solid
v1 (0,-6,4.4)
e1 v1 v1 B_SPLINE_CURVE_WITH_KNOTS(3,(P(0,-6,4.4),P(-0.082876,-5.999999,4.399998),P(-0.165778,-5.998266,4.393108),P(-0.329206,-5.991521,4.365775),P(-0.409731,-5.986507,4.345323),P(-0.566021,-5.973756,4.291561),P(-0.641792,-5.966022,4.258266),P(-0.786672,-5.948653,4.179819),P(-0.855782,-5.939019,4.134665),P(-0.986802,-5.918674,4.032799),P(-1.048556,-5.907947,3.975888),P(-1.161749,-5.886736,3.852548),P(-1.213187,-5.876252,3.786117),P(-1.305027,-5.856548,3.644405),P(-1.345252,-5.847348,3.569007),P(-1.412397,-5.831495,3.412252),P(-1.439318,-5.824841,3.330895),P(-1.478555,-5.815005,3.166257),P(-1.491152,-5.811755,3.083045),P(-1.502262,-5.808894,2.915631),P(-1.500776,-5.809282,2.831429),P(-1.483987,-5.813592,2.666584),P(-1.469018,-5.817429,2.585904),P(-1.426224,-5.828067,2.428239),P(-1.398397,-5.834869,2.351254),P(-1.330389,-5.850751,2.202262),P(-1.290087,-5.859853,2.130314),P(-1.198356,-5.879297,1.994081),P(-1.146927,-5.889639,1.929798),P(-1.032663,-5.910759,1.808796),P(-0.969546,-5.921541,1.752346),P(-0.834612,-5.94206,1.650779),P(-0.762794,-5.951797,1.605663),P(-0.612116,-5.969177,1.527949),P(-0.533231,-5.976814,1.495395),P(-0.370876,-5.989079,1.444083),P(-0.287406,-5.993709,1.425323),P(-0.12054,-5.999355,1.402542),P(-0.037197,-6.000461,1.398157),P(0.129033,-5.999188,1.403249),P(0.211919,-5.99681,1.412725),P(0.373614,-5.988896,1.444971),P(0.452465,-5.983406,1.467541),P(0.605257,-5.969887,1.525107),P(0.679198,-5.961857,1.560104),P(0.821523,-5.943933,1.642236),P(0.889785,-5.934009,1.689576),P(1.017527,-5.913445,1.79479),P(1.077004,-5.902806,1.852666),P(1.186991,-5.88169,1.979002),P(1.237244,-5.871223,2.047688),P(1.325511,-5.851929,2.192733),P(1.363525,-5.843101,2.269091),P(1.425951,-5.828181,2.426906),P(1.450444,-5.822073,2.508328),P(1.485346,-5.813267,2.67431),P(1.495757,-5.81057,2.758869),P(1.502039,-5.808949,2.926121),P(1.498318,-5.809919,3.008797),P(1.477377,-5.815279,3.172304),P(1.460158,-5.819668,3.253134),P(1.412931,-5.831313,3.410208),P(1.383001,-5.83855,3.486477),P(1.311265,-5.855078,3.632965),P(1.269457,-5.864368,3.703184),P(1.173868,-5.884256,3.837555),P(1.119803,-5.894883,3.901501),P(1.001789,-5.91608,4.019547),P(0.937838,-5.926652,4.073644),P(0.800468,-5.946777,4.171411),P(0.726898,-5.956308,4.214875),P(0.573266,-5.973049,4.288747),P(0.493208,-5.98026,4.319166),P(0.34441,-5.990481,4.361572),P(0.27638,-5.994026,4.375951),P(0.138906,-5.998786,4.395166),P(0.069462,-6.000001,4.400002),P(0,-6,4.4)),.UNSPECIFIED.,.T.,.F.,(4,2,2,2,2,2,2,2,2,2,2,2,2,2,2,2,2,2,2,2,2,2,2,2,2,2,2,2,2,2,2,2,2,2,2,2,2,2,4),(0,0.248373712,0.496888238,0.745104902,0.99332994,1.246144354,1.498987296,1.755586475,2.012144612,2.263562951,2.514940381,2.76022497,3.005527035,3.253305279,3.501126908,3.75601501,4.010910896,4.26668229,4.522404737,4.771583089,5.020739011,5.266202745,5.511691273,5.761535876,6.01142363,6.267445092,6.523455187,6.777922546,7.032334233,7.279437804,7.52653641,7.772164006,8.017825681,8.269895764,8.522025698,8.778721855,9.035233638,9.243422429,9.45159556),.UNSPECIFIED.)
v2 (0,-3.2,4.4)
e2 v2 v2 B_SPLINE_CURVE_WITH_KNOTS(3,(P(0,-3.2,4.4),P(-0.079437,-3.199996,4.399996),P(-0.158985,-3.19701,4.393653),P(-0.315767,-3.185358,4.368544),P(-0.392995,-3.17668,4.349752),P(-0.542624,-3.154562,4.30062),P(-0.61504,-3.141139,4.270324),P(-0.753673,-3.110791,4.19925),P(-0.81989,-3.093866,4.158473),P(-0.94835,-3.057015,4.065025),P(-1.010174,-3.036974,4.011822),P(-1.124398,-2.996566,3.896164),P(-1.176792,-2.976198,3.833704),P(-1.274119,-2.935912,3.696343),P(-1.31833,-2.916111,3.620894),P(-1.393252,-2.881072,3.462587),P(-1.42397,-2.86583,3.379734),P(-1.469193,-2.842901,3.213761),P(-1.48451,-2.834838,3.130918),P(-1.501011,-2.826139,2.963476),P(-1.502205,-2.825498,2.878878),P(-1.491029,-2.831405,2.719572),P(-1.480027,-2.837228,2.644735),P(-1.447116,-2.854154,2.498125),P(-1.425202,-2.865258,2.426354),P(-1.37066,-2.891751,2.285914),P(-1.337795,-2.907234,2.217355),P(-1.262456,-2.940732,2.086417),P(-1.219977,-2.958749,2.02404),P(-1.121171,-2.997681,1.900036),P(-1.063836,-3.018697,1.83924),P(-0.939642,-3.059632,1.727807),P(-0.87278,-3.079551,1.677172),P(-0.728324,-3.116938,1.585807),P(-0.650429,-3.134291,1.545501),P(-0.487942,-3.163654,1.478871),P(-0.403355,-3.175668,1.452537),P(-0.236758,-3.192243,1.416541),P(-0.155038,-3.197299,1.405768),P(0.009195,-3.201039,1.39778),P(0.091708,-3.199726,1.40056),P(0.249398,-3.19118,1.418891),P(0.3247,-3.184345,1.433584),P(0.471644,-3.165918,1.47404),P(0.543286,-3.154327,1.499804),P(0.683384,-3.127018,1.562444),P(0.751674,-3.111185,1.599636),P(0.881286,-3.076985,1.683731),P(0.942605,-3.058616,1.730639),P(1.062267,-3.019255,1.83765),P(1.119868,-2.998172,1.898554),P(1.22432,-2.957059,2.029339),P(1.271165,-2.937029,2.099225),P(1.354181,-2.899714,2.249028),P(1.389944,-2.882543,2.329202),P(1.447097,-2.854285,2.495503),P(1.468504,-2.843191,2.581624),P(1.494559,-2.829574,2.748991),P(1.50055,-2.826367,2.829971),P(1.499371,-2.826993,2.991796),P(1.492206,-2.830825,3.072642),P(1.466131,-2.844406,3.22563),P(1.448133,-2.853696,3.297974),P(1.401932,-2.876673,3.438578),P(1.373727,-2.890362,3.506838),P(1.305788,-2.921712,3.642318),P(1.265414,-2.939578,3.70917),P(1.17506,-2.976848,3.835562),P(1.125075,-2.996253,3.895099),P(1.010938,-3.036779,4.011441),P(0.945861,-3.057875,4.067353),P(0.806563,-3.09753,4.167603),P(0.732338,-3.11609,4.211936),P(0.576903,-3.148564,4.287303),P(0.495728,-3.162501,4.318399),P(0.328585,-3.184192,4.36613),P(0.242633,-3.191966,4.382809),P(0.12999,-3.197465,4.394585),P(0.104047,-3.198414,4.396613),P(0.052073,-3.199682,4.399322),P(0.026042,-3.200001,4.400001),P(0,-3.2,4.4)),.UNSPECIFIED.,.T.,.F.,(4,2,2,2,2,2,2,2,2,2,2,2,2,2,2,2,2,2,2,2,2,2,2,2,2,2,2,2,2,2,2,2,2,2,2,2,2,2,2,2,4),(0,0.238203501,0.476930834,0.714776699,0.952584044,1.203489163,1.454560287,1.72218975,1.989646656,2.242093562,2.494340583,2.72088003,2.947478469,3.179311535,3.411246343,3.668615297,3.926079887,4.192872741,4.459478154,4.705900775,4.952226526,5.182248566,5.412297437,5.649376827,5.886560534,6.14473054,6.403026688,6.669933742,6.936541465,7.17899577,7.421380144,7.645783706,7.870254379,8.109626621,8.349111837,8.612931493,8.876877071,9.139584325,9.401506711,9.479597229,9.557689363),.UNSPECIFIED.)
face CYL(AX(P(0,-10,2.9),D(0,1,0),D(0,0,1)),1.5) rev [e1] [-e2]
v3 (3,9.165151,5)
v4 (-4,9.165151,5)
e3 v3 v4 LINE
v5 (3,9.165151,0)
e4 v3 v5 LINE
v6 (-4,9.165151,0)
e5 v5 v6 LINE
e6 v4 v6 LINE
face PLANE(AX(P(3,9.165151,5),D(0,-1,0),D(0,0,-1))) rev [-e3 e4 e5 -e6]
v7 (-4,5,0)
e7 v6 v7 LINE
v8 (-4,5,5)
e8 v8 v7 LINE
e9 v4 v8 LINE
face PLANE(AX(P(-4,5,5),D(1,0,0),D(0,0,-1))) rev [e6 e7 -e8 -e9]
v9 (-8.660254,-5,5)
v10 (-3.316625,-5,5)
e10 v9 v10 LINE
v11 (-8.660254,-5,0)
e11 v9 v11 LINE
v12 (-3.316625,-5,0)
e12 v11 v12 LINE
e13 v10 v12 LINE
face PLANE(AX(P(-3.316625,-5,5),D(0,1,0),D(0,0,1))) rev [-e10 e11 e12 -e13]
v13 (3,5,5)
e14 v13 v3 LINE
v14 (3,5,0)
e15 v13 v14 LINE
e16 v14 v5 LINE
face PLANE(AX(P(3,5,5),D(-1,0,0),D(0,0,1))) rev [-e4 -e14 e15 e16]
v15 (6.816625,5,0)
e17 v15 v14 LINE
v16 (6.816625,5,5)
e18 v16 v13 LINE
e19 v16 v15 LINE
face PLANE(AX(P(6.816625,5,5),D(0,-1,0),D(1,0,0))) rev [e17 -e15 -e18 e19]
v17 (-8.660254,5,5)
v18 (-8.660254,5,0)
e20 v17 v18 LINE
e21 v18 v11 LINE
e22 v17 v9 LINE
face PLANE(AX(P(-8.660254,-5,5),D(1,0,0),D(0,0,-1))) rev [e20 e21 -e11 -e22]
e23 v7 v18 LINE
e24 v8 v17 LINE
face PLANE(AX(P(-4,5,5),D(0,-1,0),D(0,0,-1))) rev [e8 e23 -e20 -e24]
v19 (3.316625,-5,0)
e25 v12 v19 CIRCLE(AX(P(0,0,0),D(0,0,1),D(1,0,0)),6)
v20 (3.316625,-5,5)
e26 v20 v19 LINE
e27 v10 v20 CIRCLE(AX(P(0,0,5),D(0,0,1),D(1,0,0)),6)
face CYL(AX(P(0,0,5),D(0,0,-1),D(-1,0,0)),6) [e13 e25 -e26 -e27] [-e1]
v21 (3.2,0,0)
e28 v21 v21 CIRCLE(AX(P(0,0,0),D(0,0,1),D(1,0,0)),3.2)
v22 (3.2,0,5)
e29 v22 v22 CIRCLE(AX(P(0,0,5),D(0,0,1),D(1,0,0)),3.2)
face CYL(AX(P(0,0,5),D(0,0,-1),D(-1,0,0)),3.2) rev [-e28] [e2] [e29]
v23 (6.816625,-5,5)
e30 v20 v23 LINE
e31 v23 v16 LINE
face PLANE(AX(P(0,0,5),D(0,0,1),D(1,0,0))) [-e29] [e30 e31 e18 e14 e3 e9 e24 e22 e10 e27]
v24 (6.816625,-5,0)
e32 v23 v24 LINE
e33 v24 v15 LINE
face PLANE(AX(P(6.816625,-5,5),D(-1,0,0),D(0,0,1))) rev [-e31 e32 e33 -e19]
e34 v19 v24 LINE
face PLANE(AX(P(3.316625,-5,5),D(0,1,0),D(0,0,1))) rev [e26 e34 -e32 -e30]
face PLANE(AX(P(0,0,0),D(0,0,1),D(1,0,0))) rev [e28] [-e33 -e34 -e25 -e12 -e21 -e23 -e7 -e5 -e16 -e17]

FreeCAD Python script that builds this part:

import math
import FreeCAD as App
import Part
import Sketcher

V = App.Vector
Q = App.Units.Quantity

doc = App.newDocument("Part")
body = doc.addObject("PartDesign::Body", "Body")

sketch1 = body.newObject("Sketcher::SketchObject", "Sketch")
sketch1.AttachmentSupport = (doc.getObject("XY_Plane"), [""])
sketch1.MapMode = "FlatFace"
sketch1.addGeometry([
    Part.LineSegment(V(-8.7, -5, 0), V(-3.3, -5, 0)),
    Part.ArcOfCircle(Part.Circle(V(0, 0, 0), V(0, 0, 1), 6), math.radians(-124), math.radians(-56)),
    Part.LineSegment(V(3.3, -5, 0), V(6.8, -5, 0)),
    Part.LineSegment(V(6.8, -5, 0), V(6.8, 5, 0)),
    Part.LineSegment(V(6.8, 5, 0), V(3, 5, 0)),
    Part.LineSegment(V(3, 5, 0), V(3, 9.2, 0)),
    Part.LineSegment(V(3, 9.2, 0), V(-4, 9.2, 0)),
    Part.LineSegment(V(-4, 9.2, 0), V(-4, 5, 0)),
    Part.LineSegment(V(-4, 5, 0), V(-8.7, 5, 0)),
    Part.LineSegment(V(-8.7, 5, 0), V(-8.7, -5, 0)),
    Part.Circle(V(0, 0, 0), V(0, 0, 1), 3.2),
], False)
sketch1.addConstraint([
    Sketcher.Constraint("Coincident", 0, 2, 1, 1),
    Sketcher.Constraint("Coincident", 1, 2, 2, 1),
    Sketcher.Constraint("Coincident", 2, 2, 3, 1),
    Sketcher.Constraint("Coincident", 3, 2, 4, 1),
    Sketcher.Constraint("Coincident", 4, 2, 5, 1),
    Sketcher.Constraint("Coincident", 5, 2, 6, 1),
    Sketcher.Constraint("Coincident", 6, 2, 7, 1),
    Sketcher.Constraint("Coincident", 7, 2, 8, 1),
    Sketcher.Constraint("Coincident", 8, 2, 9, 1),
    Sketcher.Constraint("Coincident", 9, 2, 0, 1),
    Sketcher.Constraint("Horizontal", 0),
    Sketcher.Constraint("Horizontal", 2),
    Sketcher.Constraint("Vertical", 3),
    Sketcher.Constraint("Horizontal", 4),
    Sketcher.Constraint("Vertical", 5),
    Sketcher.Constraint("Horizontal", 6),
    Sketcher.Constraint("Vertical", 7),
    Sketcher.Constraint("Horizontal", 8),
    Sketcher.Constraint("Vertical", 9),
    Sketcher.Constraint("Coincident", 1, 3, -1, 1),
    Sketcher.Constraint("Coincident", 10, 3, -1, 1),
    Sketcher.Constraint("Horizontal", 0, 2, 1, 2),
    Sketcher.Constraint("Horizontal", 4, 2, 7, 2),
    Sketcher.Constraint("Radius", 1, Q("6 mm")),
    Sketcher.Constraint("Diameter", 10, Q("6.4 mm")),
    Sketcher.Constraint("DistanceX", 6, 2, 6, 1, Q("7 mm")),
    Sketcher.Constraint("DistanceY", 3, 1, 3, 2, Q("10 mm")),
    Sketcher.Constraint("DistanceX", 2, 1, 2, 2, Q("3.5 mm")),
    Sketcher.Constraint("DistanceY", 0, 2, -1, 1, Q("5 mm")),
    Sketcher.Constraint("DistanceX", -1, 1, 4, 2, Q("3 mm")),
    Sketcher.Constraint("DistanceX", 0, 1, 0, 2, Q("5.343629 mm")),
    Sketcher.Constraint("DistanceY", 5, 1, 5, 2, Q("4.165151 mm")),
])
pad1 = body.newObject("PartDesign::Pad", "Pad")
pad1.Profile = sketch1
pad1.Length = 5

sketch2 = body.newObject("Sketcher::SketchObject", "Sketch001")
sketch2.AttachmentSupport = (doc.getObject("XZ_Plane"), [""])
sketch2.MapMode = "FlatFace"
sketch2.AttachmentOffset = App.Placement(V(0, 0, 5), App.Rotation())
sketch2.addGeometry(Part.Circle(V(0, 2.9, 0), V(0, 0, 1), 1.5), False)
sketch2.addConstraint([
    Sketcher.Constraint("PointOnObject", 0, 3, -2),
    Sketcher.Constraint("Diameter", 0, Q("3 mm")),
    Sketcher.Constraint("DistanceY", -1, 1, 0, 3, Q("2.9 mm")),
])
pocket1 = body.newObject("PartDesign::Pocket", "Pocket")
pocket1.Profile = sketch2
pocket1.Type = "TwoLengths"
pocket1.Length = 5
pocket1.Length2 = 5
pocket1.Reversed = True

doc.recompute()
